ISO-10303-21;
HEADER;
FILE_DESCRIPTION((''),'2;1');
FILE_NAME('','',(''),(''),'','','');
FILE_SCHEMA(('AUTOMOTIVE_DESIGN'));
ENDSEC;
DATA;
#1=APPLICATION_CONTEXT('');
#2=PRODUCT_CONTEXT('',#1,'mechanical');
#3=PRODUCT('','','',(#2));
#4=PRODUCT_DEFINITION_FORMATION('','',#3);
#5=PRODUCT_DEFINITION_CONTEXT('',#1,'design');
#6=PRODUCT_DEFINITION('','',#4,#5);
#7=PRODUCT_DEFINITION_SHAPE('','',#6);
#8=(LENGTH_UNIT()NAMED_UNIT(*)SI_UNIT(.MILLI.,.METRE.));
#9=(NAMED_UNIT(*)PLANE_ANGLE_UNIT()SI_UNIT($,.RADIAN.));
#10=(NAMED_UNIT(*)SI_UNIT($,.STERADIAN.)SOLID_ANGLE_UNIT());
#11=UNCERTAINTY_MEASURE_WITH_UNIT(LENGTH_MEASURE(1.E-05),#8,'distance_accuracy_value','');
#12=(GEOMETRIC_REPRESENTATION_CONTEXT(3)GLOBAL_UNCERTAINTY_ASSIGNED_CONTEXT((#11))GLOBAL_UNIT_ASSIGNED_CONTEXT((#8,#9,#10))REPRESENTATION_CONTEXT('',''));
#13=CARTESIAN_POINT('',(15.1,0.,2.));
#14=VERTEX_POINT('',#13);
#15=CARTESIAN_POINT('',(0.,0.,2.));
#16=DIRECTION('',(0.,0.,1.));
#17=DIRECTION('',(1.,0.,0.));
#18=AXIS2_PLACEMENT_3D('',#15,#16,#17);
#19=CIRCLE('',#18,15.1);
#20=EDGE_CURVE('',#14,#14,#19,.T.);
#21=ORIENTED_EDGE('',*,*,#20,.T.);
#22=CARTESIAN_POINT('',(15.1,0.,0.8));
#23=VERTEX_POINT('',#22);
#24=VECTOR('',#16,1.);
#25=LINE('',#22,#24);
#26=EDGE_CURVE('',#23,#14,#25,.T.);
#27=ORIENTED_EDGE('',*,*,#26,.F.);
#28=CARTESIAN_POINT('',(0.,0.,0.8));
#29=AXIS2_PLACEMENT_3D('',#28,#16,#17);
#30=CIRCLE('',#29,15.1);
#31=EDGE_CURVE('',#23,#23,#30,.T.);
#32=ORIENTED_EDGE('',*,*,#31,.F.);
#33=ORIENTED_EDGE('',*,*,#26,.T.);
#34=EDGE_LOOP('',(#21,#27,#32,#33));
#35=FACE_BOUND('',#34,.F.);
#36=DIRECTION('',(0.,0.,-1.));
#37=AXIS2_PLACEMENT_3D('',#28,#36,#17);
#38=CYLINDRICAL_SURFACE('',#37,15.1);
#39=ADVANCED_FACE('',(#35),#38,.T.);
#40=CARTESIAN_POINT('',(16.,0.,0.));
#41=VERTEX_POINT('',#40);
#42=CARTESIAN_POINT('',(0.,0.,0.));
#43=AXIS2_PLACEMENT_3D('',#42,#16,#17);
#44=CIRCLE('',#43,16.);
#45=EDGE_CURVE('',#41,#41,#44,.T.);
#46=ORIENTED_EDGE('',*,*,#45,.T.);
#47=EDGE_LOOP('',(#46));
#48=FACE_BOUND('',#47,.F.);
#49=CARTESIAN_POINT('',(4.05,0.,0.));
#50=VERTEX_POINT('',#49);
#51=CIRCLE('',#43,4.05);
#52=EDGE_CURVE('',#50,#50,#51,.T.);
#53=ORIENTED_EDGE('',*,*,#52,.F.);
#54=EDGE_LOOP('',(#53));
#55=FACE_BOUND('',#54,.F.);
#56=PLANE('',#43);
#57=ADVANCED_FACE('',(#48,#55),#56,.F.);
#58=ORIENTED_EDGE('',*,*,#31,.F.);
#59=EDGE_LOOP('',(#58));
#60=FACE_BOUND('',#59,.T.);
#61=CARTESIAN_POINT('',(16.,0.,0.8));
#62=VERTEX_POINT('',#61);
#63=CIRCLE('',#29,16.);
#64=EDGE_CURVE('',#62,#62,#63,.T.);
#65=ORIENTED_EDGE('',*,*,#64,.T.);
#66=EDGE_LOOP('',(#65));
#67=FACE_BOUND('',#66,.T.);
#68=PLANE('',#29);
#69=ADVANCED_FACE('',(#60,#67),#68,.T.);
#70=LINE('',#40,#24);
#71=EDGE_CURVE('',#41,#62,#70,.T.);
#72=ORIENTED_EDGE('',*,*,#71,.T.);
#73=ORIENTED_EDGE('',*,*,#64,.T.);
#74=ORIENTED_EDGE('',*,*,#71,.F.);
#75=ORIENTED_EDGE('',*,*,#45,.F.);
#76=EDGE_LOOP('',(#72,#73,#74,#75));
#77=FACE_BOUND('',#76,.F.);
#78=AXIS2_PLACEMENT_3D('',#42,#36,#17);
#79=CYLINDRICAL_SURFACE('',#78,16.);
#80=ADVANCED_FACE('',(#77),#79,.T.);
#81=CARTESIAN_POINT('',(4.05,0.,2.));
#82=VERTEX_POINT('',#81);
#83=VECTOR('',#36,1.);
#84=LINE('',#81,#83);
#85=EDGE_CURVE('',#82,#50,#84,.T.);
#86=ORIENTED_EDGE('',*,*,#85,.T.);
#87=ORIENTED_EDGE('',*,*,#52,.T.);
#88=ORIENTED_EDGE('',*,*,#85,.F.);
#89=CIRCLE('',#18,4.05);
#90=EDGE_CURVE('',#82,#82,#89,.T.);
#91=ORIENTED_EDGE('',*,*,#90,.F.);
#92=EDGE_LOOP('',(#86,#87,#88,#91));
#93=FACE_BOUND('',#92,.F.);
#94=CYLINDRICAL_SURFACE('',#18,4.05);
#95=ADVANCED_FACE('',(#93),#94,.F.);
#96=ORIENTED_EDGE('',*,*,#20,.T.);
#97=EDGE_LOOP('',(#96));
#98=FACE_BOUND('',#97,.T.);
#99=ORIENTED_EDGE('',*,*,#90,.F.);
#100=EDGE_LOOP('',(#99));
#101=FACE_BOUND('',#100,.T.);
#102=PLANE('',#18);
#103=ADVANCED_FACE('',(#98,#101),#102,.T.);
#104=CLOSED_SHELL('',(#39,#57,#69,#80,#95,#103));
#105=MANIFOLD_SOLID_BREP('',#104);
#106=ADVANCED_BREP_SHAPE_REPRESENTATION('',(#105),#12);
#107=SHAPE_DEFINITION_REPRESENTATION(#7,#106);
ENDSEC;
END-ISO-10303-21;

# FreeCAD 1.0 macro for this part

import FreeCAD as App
import Part
import Sketcher
Q = App.Units.Quantity

doc = App.newDocument("Part")
params = doc.addObject("Spreadsheet::Sheet", "Params")
for row, (alias, value) in enumerate([
    ("sketch1_diameter", "32 mm"),
    ("pad1_length", "0.8 mm"),
    ("sketch2_diameter", "30.2 mm"),
    ("pad2_length", "1.2 mm"),
    ("sketch3_diameter", "8.1 mm"),
], start=1):
    params.set(f"A{row}", alias)
    params.set(f"B{row}", "=" + value)
    params.setAlias(f"B{row}", alias)

body = doc.addObject("PartDesign::Body", "Body")

sketch1 = body.newObject("Sketcher::SketchObject", "Sketch")
sketch1.AttachmentSupport = (doc.getObject("XY_Plane"), [""])
sketch1.MapMode = "FlatFace"
sketch1.addGeometry(Part.Circle(App.Vector(0, 0, 0), App.Vector(0, 0, 1), 16), False)
sketch1.addConstraint(Sketcher.Constraint("Coincident", 0, 3, -1, 1))
sketch1.addConstraint(Sketcher.Constraint("Diameter", 0, Q("32 mm")))
sketch1.setExpression("Constraints[1]", "Params.sketch1_diameter")
pad1 = body.newObject("PartDesign::Pad", "Pad")
pad1.Profile = sketch1
pad1.setExpression("Length", "Params.pad1_length")

sketch2 = body.newObject("Sketcher::SketchObject", "Sketch001")
sketch2.AttachmentSupport = (doc.getObject("XY_Plane"), [""])
sketch2.MapMode = "FlatFace"
sketch2.AttachmentOffset = App.Placement(App.Vector(0, 0, 0.8), App.Rotation())
sketch2.addGeometry(Part.Circle(App.Vector(0, 0, 0), App.Vector(0, 0, 1), 15.1), False)
sketch2.addConstraint(Sketcher.Constraint("Coincident", 0, 3, -1, 1))
sketch2.addConstraint(Sketcher.Constraint("Diameter", 0, Q("30.2 mm")))
sketch2.setExpression("Constraints[1]", "Params.sketch2_diameter")
pad2 = body.newObject("PartDesign::Pad", "Pad001")
pad2.Profile = sketch2
pad2.setExpression("Length", "Params.pad2_length")

sketch3 = body.newObject("Sketcher::SketchObject", "Sketch002")
sketch3.AttachmentSupport = (doc.getObject("XY_Plane"), [""])
sketch3.MapMode = "FlatFace"
sketch3.AttachmentOffset = App.Placement(App.Vector(0, 0, 2), App.Rotation())
sketch3.addGeometry(Part.Circle(App.Vector(0, 0, 0), App.Vector(0, 0, 1), 4.05), False)
sketch3.addConstraint(Sketcher.Constraint("Coincident", 0, 3, -1, 1))
sketch3.addConstraint(Sketcher.Constraint("Diameter", 0, Q("8.1 mm")))
sketch3.setExpression("Constraints[1]", "Params.sketch3_diameter")
pocket1 = body.newObject("PartDesign::Pocket", "Pocket")
pocket1.Profile = sketch3
pocket1.Type = "ThroughAll"

doc.recompute()
